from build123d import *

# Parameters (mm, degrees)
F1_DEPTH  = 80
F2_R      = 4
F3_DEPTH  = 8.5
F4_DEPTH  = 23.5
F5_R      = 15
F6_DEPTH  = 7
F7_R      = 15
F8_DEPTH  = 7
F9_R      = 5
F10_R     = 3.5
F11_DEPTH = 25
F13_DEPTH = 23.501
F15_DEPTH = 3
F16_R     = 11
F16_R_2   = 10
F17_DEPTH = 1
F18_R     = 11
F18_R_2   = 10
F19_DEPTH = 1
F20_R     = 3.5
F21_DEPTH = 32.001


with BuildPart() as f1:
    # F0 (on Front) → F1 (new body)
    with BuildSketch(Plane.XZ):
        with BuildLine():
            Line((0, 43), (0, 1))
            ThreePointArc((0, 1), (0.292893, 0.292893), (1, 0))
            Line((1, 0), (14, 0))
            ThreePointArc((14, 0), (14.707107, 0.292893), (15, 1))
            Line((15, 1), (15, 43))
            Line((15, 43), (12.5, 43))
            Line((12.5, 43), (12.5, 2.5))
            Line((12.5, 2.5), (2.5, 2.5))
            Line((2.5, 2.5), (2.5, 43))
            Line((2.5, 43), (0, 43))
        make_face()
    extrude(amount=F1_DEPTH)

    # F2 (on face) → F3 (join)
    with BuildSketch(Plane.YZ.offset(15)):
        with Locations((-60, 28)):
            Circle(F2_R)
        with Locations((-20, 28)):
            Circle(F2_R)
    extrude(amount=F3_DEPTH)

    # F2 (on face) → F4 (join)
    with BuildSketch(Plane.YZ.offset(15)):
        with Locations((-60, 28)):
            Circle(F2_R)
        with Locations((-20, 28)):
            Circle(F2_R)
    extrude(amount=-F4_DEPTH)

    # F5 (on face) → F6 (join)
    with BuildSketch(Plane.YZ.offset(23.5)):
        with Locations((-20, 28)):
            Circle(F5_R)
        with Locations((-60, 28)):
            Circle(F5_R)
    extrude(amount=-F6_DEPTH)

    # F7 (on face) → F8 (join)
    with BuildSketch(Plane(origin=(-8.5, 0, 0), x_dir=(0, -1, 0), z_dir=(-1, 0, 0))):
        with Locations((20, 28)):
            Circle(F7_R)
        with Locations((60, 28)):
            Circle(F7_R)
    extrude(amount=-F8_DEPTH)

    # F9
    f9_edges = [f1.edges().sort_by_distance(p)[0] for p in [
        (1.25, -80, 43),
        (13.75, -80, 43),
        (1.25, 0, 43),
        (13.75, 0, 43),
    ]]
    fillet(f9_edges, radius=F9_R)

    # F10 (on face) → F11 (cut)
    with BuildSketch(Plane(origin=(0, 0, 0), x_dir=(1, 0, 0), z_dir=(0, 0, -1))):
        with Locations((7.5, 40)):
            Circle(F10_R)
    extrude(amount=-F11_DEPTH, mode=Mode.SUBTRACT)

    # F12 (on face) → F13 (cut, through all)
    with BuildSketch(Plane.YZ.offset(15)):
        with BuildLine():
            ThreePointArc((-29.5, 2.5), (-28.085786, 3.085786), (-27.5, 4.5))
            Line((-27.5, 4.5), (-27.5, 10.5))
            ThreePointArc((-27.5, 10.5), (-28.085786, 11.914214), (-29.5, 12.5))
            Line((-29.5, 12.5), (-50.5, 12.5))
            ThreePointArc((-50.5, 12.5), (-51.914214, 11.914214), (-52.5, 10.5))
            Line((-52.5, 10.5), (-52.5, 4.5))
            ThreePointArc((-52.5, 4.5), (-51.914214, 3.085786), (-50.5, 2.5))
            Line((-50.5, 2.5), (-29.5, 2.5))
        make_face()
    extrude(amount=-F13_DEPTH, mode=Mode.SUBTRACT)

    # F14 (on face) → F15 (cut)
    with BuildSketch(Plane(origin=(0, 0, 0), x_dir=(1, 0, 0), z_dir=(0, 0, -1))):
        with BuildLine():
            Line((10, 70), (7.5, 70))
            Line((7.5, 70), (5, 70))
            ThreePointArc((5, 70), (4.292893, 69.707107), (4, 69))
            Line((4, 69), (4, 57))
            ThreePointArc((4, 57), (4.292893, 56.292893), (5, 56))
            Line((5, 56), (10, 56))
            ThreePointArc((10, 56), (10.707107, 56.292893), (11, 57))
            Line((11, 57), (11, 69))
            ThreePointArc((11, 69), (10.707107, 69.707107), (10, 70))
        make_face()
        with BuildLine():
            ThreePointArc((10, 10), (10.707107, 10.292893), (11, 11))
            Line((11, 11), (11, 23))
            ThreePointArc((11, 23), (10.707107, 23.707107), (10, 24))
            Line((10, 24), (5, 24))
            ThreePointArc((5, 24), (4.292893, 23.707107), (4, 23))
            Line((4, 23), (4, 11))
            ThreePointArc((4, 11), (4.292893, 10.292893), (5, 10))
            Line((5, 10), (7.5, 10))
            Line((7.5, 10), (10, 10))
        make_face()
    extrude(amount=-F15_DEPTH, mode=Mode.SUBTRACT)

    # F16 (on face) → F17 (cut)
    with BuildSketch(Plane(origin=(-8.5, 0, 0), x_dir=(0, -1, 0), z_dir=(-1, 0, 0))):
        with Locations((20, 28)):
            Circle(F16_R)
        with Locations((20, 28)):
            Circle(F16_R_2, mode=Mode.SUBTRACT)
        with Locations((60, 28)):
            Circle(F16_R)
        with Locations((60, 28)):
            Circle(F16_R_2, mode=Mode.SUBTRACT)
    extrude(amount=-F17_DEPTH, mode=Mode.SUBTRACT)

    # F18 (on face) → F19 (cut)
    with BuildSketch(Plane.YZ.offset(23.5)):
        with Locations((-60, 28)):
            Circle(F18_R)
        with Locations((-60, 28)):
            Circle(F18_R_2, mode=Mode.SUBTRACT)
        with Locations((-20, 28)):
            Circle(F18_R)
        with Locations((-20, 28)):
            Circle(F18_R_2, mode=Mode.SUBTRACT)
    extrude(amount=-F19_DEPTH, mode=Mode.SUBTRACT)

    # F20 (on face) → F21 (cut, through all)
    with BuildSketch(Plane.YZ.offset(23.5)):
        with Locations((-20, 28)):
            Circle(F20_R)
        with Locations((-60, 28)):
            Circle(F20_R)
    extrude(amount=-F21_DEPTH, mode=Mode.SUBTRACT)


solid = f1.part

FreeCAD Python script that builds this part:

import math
import FreeCAD as App
import Part
import Sketcher

V = App.Vector


def edges_at(feature, points):
    """Names of the edges that pass closest to the given points."""
    edges = feature.Shape.Edges
    near = lambda p: min(range(len(edges)), key=lambda i: edges[i].distToShape(Part.Vertex(*p))[0])
    return sorted({f"Edge{near(p) + 1}" for p in points})

doc = App.newDocument("Part")
body = doc.addObject("PartDesign::Body", "Body")

# Sketch on XZ plane
sketch1 = body.newObject("Sketcher::SketchObject", "Sketch")
sketch1.AttachmentSupport = (doc.getObject("XZ_Plane"), [""])
sketch1.MapMode = "FlatFace"
sketch1.addGeometry([
    Part.LineSegment(V(0, 43, 0), V(0, 1, 0)),  # 0
    Part.ArcOfCircle(Part.Circle(V(1, 1, 0), V(0, 0, 1), 1), math.radians(180), math.radians(270)),  # 1
    Part.LineSegment(V(1, 0, 0), V(14, 0, 0)),  # 2
    Part.ArcOfCircle(Part.Circle(V(14, 1, 0), V(0, 0, 1), 1), math.radians(-90), math.radians(0)),  # 3
    Part.LineSegment(V(15, 1, 0), V(15, 43, 0)),  # 4
    Part.LineSegment(V(15, 43, 0), V(12.5, 43, 0)),  # 5
    Part.LineSegment(V(12.5, 43, 0), V(12.5, 2.5, 0)),  # 6
    Part.LineSegment(V(12.5, 2.5, 0), V(2.5, 2.5, 0)),  # 7
    Part.LineSegment(V(2.5, 2.5, 0), V(2.5, 43, 0)),  # 8
    Part.LineSegment(V(2.5, 43, 0), V(0, 43, 0)),  # 9
], False)
sketch1.addConstraint([
    Sketcher.Constraint("Tangent", 0, 2, 1, 1),
    Sketcher.Constraint("Tangent", 1, 2, 2, 1),
    Sketcher.Constraint("Tangent", 2, 2, 3, 1),
    Sketcher.Constraint("Tangent", 3, 2, 4, 1),
    Sketcher.Constraint("Coincident", 4, 2, 5, 1),
    Sketcher.Constraint("Coincident", 5, 2, 6, 1),
    Sketcher.Constraint("Coincident", 6, 2, 7, 1),
    Sketcher.Constraint("Coincident", 7, 2, 8, 1),
    Sketcher.Constraint("Coincident", 8, 2, 9, 1),
    Sketcher.Constraint("Coincident", 9, 2, 0, 1),
    Sketcher.Constraint("Vertical", 0),
    Sketcher.Constraint("Horizontal", 2),
    Sketcher.Constraint("Vertical", 4),
    Sketcher.Constraint("Horizontal", 5),
    Sketcher.Constraint("Vertical", 6),
    Sketcher.Constraint("Horizontal", 7),
    Sketcher.Constraint("Vertical", 8),
    Sketcher.Constraint("Horizontal", 9),
    Sketcher.Constraint("Equal", 1, 3),
    Sketcher.Constraint("PointOnObject", 0, 2, -2),
    Sketcher.Constraint("PointOnObject", 1, 2, -1),
    Sketcher.Constraint("Horizontal", 5, 2, 8, 2),
    Sketcher.Constraint("Equal", 5, 9),
    Sketcher.Constraint("Radius", 1, 0.999999),
    Sketcher.Constraint("DistanceX", 2, 1, 2, 2, 13.0),
    Sketcher.Constraint("DistanceX", 7, 2, 7, 1, 10.0),
    Sketcher.Constraint("DistanceY", 0, 2, 0, 1, 42.0),
    Sketcher.Constraint("DistanceY", 6, 2, 6, 1, 40.5),
])
pad1 = body.newObject("PartDesign::Pad", "Pad")
pad1.Profile = sketch1
pad1.Length = 80

# Sketch on YZ plane
sketch2 = body.newObject("Sketcher::SketchObject", "Sketch001")
sketch2.AttachmentSupport = (doc.getObject("YZ_Plane"), [""])
sketch2.MapMode = "FlatFace"
sketch2.AttachmentOffset = App.Placement(V(0, 0, 15), App.Rotation())
sketch2.addGeometry([
    Part.Circle(V(-60, 28, 0), V(0, 0, 1), 4),
    Part.Circle(V(-20, 28, 0), V(0, 0, 1), 4),
], False)
sketch2.addConstraint([
    Sketcher.Constraint("Equal", 0, 1),
    Sketcher.Constraint("Horizontal", 0, 3, 1, 3),
    Sketcher.Constraint("Diameter", 0, 8.0),
    Sketcher.Constraint("DistanceX", 0, 3, -1, 1, 60.0),
    Sketcher.Constraint("DistanceY", -1, 1, 0, 3, 28.0),
    Sketcher.Constraint("DistanceX", 1, 3, -1, 1, 20.0),
])
pad2 = body.newObject("PartDesign::Pad", "Pad001")
pad2.Profile = sketch2
pad2.Length = 8.5

# Sketch on YZ plane
sketch3 = body.newObject("Sketcher::SketchObject", "Sketch002")
sketch3.AttachmentSupport = (doc.getObject("YZ_Plane"), [""])
sketch3.MapMode = "FlatFace"
sketch3.AttachmentOffset = App.Placement(V(0, 0, 15), App.Rotation())
sketch3.addGeometry([
    Part.Circle(V(-60, 28, 0), V(0, 0, 1), 4),
    Part.Circle(V(-20, 28, 0), V(0, 0, 1), 4),
], False)
sketch3.addConstraint([
    Sketcher.Constraint("Equal", 0, 1),
    Sketcher.Constraint("Horizontal", 0, 3, 1, 3),
    Sketcher.Constraint("Diameter", 0, 8.0),
    Sketcher.Constraint("DistanceX", 0, 3, -1, 1, 60.0),
    Sketcher.Constraint("DistanceY", -1, 1, 0, 3, 28.0),
    Sketcher.Constraint("DistanceX", 1, 3, -1, 1, 20.0),
])
pad3 = body.newObject("PartDesign::Pad", "Pad002")
pad3.Profile = sketch3
pad3.Length = 23.5
pad3.Reversed = True

# Sketch on YZ plane
sketch4 = body.newObject("Sketcher::SketchObject", "Sketch003")
sketch4.AttachmentSupport = (doc.getObject("YZ_Plane"), [""])
sketch4.MapMode = "FlatFace"
sketch4.AttachmentOffset = App.Placement(V(0, 0, 23.5), App.Rotation())
sketch4.addGeometry([
    Part.Circle(V(-20, 28, 0), V(0, 0, 1), 15),
    Part.Circle(V(-60, 28, 0), V(0, 0, 1), 15),
], False)
sketch4.addConstraint([
    Sketcher.Constraint("Equal", 0, 1),
    Sketcher.Constraint("Horizontal", 0, 3, 1, 3),
    Sketcher.Constraint("Diameter", 0, 30.0),
    Sketcher.Constraint("DistanceX", 0, 3, -1, 1, 20.0),
    Sketcher.Constraint("DistanceY", -1, 1, 0, 3, 28.0),
    Sketcher.Constraint("DistanceX", 1, 3, -1, 1, 60.0),
])
pad4 = body.newObject("PartDesign::Pad", "Pad003")
pad4.Profile = sketch4
pad4.Length = 7
pad4.Reversed = True

# Sketch on YZ plane
sketch5 = body.newObject("Sketcher::SketchObject", "Sketch004")
sketch5.AttachmentSupport = (doc.getObject("YZ_Plane"), [""])
sketch5.MapMode = "FlatFace"
sketch5.AttachmentOffset = App.Placement(V(0, 0, -8.5), App.Rotation())
sketch5.addGeometry([
    Part.Circle(V(-20, 28, 0), V(0, 0, 1), 15),
    Part.Circle(V(-60, 28, 0), V(0, 0, 1), 15),
], False)
sketch5.addConstraint([
    Sketcher.Constraint("Equal", 0, 1),
    Sketcher.Constraint("Horizontal", 0, 3, 1, 3),
    Sketcher.Constraint("Diameter", 0, 30.0),
    Sketcher.Constraint("DistanceX", 0, 3, -1, 1, 20.0),
    Sketcher.Constraint("DistanceY", -1, 1, 0, 3, 28.0),
    Sketcher.Constraint("DistanceX", 1, 3, -1, 1, 60.0),
])
pad5 = body.newObject("PartDesign::Pad", "Pad004")
pad5.Profile = sketch5
pad5.Length = 7
doc.recompute()

fillet = body.newObject("PartDesign::Fillet", "Fillet")
fillet.Base = (pad5, edges_at(pad5, [
    (1.25, -80, 43),
    (13.75, -80, 43),
    (1.25, 0, 43),
    (13.75, 0, 43),
]))
fillet.Radius = 5

# Sketch on XY plane
sketch6 = body.newObject("Sketcher::SketchObject", "Sketch005")
sketch6.AttachmentSupport = (doc.getObject("XY_Plane"), [""])
sketch6.MapMode = "FlatFace"
sketch6.addGeometry(Part.Circle(V(7.5, -40, 0), V(0, 0, 1), 3.5), False)
sketch6.addConstraint([
    Sketcher.Constraint("Diameter", 0, 7.0),
    Sketcher.Constraint("DistanceY", 0, 3, -1, 1, 40.0),
    Sketcher.Constraint("DistanceX", -1, 1, 0, 3, 7.5),
])
pocket1 = body.newObject("PartDesign::Pocket", "Pocket")
pocket1.Profile = sketch6
pocket1.Length = 25
pocket1.Reversed = True

# Sketch on YZ plane
sketch7 = body.newObject("Sketcher::SketchObject", "Sketch006")
sketch7.AttachmentSupport = (doc.getObject("YZ_Plane"), [""])
sketch7.MapMode = "FlatFace"
sketch7.AttachmentOffset = App.Placement(V(0, 0, 15), App.Rotation())
sketch7.addGeometry([
    Part.ArcOfCircle(Part.Circle(V(-29.5, 4.5, 0), V(0, 0, 1), 2), math.radians(-90), math.radians(0)),  # 0
    Part.LineSegment(V(-27.5, 4.5, 0), V(-27.5, 10.5, 0)),  # 1
    Part.ArcOfCircle(Part.Circle(V(-29.5, 10.5, 0), V(0, 0, 1), 2), math.radians(0), math.radians(90)),  # 2
    Part.LineSegment(V(-29.5, 12.5, 0), V(-50.5, 12.5, 0)),  # 3
    Part.ArcOfCircle(Part.Circle(V(-50.5, 10.5, 0), V(0, 0, 1), 2), math.radians(90), math.radians(180)),  # 4
    Part.LineSegment(V(-52.5, 10.5, 0), V(-52.5, 4.5, 0)),  # 5
    Part.ArcOfCircle(Part.Circle(V(-50.5, 4.5, 0), V(0, 0, 1), 2), math.radians(180), math.radians(270)),  # 6
    Part.LineSegment(V(-50.5, 2.5, 0), V(-29.5, 2.5, 0)),  # 7
], False)
sketch7.addConstraint([
    Sketcher.Constraint("Tangent", 0, 2, 1, 1),
    Sketcher.Constraint("Tangent", 1, 2, 2, 1),
    Sketcher.Constraint("Tangent", 2, 2, 3, 1),
    Sketcher.Constraint("Tangent", 3, 2, 4, 1),
    Sketcher.Constraint("Tangent", 4, 2, 5, 1),
    Sketcher.Constraint("Tangent", 5, 2, 6, 1),
    Sketcher.Constraint("Tangent", 6, 2, 7, 1),
    Sketcher.Constraint("Tangent", 7, 2, 0, 1),
    Sketcher.Constraint("Vertical", 1),
    Sketcher.Constraint("Horizontal", 3),
    Sketcher.Constraint("Vertical", 5),
    Sketcher.Constraint("Horizontal", 7),
    Sketcher.Constraint("Equal", 0, 2),
    Sketcher.Constraint("Equal", 2, 4),
    Sketcher.Constraint("Equal", 4, 6),
    Sketcher.Constraint("Radius", 0, 1.999999),
    Sketcher.Constraint("DistanceX", 3, 2, 3, 1, 21.0),
    Sketcher.Constraint("DistanceY", 1, 1, 1, 2, 6.0),
    Sketcher.Constraint("DistanceX", 0, 3, -1, 1, 29.499999),
    Sketcher.Constraint("DistanceY", -1, 1, 0, 3, 4.499999),
])
pocket2 = body.newObject("PartDesign::Pocket", "Pocket001")
pocket2.Profile = sketch7
pocket2.Type = "ThroughAll"

# Sketch on XY plane
sketch8 = body.newObject("Sketcher::SketchObject", "Sketch007")
sketch8.AttachmentSupport = (doc.getObject("XY_Plane"), [""])
sketch8.MapMode = "FlatFace"
sketch8.addGeometry([
    Part.LineSegment(V(10, -70, 0), V(5, -70, 0)),  # 0
    Part.ArcOfCircle(Part.Circle(V(5, -69, 0), V(0, 0, 1), 1), math.radians(180), math.radians(270)),  # 1
    Part.LineSegment(V(4, -69, 0), V(4, -57, 0)),  # 2
    Part.ArcOfCircle(Part.Circle(V(5, -57, 0), V(0, 0, 1), 1), math.radians(90), math.radians(180)),  # 3
    Part.LineSegment(V(5, -56, 0), V(10, -56, 0)),  # 4
    Part.ArcOfCircle(Part.Circle(V(10, -57, 0), V(0, 0, 1), 1), math.radians(0), math.radians(90)),  # 5
    Part.LineSegment(V(11, -57, 0), V(11, -69, 0)),  # 6
    Part.ArcOfCircle(Part.Circle(V(10, -69, 0), V(0, 0, 1), 1), math.radians(-90), math.radians(0)),  # 7
    Part.ArcOfCircle(Part.Circle(V(10, -11, 0), V(0, 0, 1), 1), math.radians(0), math.radians(90)),  # 8
    Part.LineSegment(V(11, -11, 0), V(11, -23, 0)),  # 9
    Part.ArcOfCircle(Part.Circle(V(10, -23, 0), V(0, 0, 1), 1), math.radians(-90), math.radians(0)),  # 10
    Part.LineSegment(V(10, -24, 0), V(5, -24, 0)),  # 11
    Part.ArcOfCircle(Part.Circle(V(5, -23, 0), V(0, 0, 1), 1), math.radians(180), math.radians(270)),  # 12
    Part.LineSegment(V(4, -23, 0), V(4, -11, 0)),  # 13
    Part.ArcOfCircle(Part.Circle(V(5, -11, 0), V(0, 0, 1), 1), math.radians(90), math.radians(180)),  # 14
    Part.LineSegment(V(5, -10, 0), V(10, -10, 0)),  # 15
], False)
sketch8.addConstraint([
    Sketcher.Constraint("Tangent", 0, 2, 1, 2),
    Sketcher.Constraint("Tangent", 1, 1, 2, 1),
    Sketcher.Constraint("Tangent", 2, 2, 3, 2),
    Sketcher.Constraint("Tangent", 3, 1, 4, 1),
    Sketcher.Constraint("Tangent", 4, 2, 5, 2),
    Sketcher.Constraint("Tangent", 5, 1, 6, 1),
    Sketcher.Constraint("Tangent", 6, 2, 7, 2),
    Sketcher.Constraint("Tangent", 7, 1, 0, 1),
    Sketcher.Constraint("Tangent", 8, 1, 9, 1),
    Sketcher.Constraint("Tangent", 9, 2, 10, 2),
    Sketcher.Constraint("Tangent", 10, 1, 11, 1),
    Sketcher.Constraint("Tangent", 11, 2, 12, 2),
    Sketcher.Constraint("Tangent", 12, 1, 13, 1),
    Sketcher.Constraint("Tangent", 13, 2, 14, 2),
    Sketcher.Constraint("Tangent", 14, 1, 15, 1),
    Sketcher.Constraint("Tangent", 15, 2, 8, 2),
    Sketcher.Constraint("Horizontal", 0),
    Sketcher.Constraint("Vertical", 2),
    Sketcher.Constraint("Horizontal", 4),
    Sketcher.Constraint("Vertical", 6),
    Sketcher.Constraint("Vertical", 9),
    Sketcher.Constraint("Horizontal", 11),
    Sketcher.Constraint("Vertical", 13),
    Sketcher.Constraint("Horizontal", 15),
    Sketcher.Constraint("Equal", 1, 3),
    Sketcher.Constraint("Equal", 3, 5),
    Sketcher.Constraint("Equal", 5, 7),
    Sketcher.Constraint("Equal", 7, 8),
    Sketcher.Constraint("Equal", 8, 10),
    Sketcher.Constraint("Equal", 10, 12),
    Sketcher.Constraint("Equal", 12, 14),
    Sketcher.Constraint("Vertical", 7, 3, 8, 3),
    Sketcher.Constraint("Vertical", 3, 3, 12, 3),
    Sketcher.Constraint("Equal", 6, 9),
    Sketcher.Constraint("Radius", 1, 0.999999),
    Sketcher.Constraint("DistanceX", 0, 2, 0, 1, 5.0),
    Sketcher.Constraint("DistanceY", 2, 1, 2, 2, 12.0),
    Sketcher.Constraint("DistanceX", -1, 1, 1, 3, 4.999999),
    Sketcher.Constraint("DistanceY", 1, 3, -1, 1, 69.000001),
    Sketcher.Constraint("DistanceY", 8, 3, -1, 1, 10.999999),
])
pocket3 = body.newObject("PartDesign::Pocket", "Pocket002")
pocket3.Profile = sketch8
pocket3.Length = 3
pocket3.Reversed = True

# Sketch on YZ plane
sketch9 = body.newObject("Sketcher::SketchObject", "Sketch008")
sketch9.AttachmentSupport = (doc.getObject("YZ_Plane"), [""])
sketch9.MapMode = "FlatFace"
sketch9.AttachmentOffset = App.Placement(V(0, 0, -8.5), App.Rotation())
sketch9.addGeometry([
    Part.Circle(V(-20, 28, 0), V(0, 0, 1), 11),
    Part.Circle(V(-20, 28, 0), V(0, 0, 1), 10),
    Part.Circle(V(-60, 28, 0), V(0, 0, 1), 11),
    Part.Circle(V(-60, 28, 0), V(0, 0, 1), 10),
], False)
sketch9.addConstraint([
    Sketcher.Constraint("Coincident", 1, 3, 0, 3),
    Sketcher.Constraint("Coincident", 3, 3, 2, 3),
    Sketcher.Constraint("Equal", 0, 2),
    Sketcher.Constraint("Equal", 1, 3),
    Sketcher.Constraint("Horizontal", 1, 3, 2, 3),
    Sketcher.Constraint("Diameter", 0, 22.0),
    Sketcher.Constraint("Diameter", 1, 20.0),
    Sketcher.Constraint("DistanceX", 0, 3, -1, 1, 20.0),
    Sketcher.Constraint("DistanceY", -1, 1, 0, 3, 28.0),
    Sketcher.Constraint("DistanceX", 2, 3, -1, 1, 60.0),
])
pocket4 = body.newObject("PartDesign::Pocket", "Pocket003")
pocket4.Profile = sketch9
pocket4.Length = 1
pocket4.Reversed = True

# Sketch on YZ plane
sketch10 = body.newObject("Sketcher::SketchObject", "Sketch009")
sketch10.AttachmentSupport = (doc.getObject("YZ_Plane"), [""])
sketch10.MapMode = "FlatFace"
sketch10.AttachmentOffset = App.Placement(V(0, 0, 23.5), App.Rotation())
sketch10.addGeometry([
    Part.Circle(V(-60, 28, 0), V(0, 0, 1), 11),
    Part.Circle(V(-60, 28, 0), V(0, 0, 1), 10),
    Part.Circle(V(-20, 28, 0), V(0, 0, 1), 11),
    Part.Circle(V(-20, 28, 0), V(0, 0, 1), 10),
], False)
sketch10.addConstraint([
    Sketcher.Constraint("Coincident", 1, 3, 0, 3),
    Sketcher.Constraint("Coincident", 3, 3, 2, 3),
    Sketcher.Constraint("Equal", 0, 2),
    Sketcher.Constraint("Equal", 1, 3),
    Sketcher.Constraint("Horizontal", 1, 3, 2, 3),
    Sketcher.Constraint("Diameter", 0, 22.0),
    Sketcher.Constraint("Diameter", 1, 20.0),
    Sketcher.Constraint("DistanceX", 0, 3, -1, 1, 60.0),
    Sketcher.Constraint("DistanceY", -1, 1, 0, 3, 28.0),
    Sketcher.Constraint("DistanceX", 2, 3, -1, 1, 20.0),
])
pocket5 = body.newObject("PartDesign::Pocket", "Pocket004")
pocket5.Profile = sketch10
pocket5.Length = 1

# Sketch on YZ plane
sketch11 = body.newObject("Sketcher::SketchObject", "Sketch010")
sketch11.AttachmentSupport = (doc.getObject("YZ_Plane"), [""])
sketch11.MapMode = "FlatFace"
sketch11.AttachmentOffset = App.Placement(V(0, 0, 23.5), App.Rotation())
sketch11.addGeometry([
    Part.Circle(V(-20, 28, 0), V(0, 0, 1), 3.5),
    Part.Circle(V(-60, 28, 0), V(0, 0, 1), 3.5),
], False)
sketch11.addConstraint([
    Sketcher.Constraint("Equal", 0, 1),
    Sketcher.Constraint("Horizontal", 0, 3, 1, 3),
    Sketcher.Constraint("Diameter", 0, 7.0),
    Sketcher.Constraint("DistanceX", 0, 3, -1, 1, 20.0),
    Sketcher.Constraint("DistanceY", -1, 1, 0, 3, 28.0),
    Sketcher.Constraint("DistanceX", 1, 3, -1, 1, 60.0),
])
pocket6 = body.newObject("PartDesign::Pocket", "Pocket005")
pocket6.Profile = sketch11
pocket6.Type = "ThroughAll"

doc.recompute()
